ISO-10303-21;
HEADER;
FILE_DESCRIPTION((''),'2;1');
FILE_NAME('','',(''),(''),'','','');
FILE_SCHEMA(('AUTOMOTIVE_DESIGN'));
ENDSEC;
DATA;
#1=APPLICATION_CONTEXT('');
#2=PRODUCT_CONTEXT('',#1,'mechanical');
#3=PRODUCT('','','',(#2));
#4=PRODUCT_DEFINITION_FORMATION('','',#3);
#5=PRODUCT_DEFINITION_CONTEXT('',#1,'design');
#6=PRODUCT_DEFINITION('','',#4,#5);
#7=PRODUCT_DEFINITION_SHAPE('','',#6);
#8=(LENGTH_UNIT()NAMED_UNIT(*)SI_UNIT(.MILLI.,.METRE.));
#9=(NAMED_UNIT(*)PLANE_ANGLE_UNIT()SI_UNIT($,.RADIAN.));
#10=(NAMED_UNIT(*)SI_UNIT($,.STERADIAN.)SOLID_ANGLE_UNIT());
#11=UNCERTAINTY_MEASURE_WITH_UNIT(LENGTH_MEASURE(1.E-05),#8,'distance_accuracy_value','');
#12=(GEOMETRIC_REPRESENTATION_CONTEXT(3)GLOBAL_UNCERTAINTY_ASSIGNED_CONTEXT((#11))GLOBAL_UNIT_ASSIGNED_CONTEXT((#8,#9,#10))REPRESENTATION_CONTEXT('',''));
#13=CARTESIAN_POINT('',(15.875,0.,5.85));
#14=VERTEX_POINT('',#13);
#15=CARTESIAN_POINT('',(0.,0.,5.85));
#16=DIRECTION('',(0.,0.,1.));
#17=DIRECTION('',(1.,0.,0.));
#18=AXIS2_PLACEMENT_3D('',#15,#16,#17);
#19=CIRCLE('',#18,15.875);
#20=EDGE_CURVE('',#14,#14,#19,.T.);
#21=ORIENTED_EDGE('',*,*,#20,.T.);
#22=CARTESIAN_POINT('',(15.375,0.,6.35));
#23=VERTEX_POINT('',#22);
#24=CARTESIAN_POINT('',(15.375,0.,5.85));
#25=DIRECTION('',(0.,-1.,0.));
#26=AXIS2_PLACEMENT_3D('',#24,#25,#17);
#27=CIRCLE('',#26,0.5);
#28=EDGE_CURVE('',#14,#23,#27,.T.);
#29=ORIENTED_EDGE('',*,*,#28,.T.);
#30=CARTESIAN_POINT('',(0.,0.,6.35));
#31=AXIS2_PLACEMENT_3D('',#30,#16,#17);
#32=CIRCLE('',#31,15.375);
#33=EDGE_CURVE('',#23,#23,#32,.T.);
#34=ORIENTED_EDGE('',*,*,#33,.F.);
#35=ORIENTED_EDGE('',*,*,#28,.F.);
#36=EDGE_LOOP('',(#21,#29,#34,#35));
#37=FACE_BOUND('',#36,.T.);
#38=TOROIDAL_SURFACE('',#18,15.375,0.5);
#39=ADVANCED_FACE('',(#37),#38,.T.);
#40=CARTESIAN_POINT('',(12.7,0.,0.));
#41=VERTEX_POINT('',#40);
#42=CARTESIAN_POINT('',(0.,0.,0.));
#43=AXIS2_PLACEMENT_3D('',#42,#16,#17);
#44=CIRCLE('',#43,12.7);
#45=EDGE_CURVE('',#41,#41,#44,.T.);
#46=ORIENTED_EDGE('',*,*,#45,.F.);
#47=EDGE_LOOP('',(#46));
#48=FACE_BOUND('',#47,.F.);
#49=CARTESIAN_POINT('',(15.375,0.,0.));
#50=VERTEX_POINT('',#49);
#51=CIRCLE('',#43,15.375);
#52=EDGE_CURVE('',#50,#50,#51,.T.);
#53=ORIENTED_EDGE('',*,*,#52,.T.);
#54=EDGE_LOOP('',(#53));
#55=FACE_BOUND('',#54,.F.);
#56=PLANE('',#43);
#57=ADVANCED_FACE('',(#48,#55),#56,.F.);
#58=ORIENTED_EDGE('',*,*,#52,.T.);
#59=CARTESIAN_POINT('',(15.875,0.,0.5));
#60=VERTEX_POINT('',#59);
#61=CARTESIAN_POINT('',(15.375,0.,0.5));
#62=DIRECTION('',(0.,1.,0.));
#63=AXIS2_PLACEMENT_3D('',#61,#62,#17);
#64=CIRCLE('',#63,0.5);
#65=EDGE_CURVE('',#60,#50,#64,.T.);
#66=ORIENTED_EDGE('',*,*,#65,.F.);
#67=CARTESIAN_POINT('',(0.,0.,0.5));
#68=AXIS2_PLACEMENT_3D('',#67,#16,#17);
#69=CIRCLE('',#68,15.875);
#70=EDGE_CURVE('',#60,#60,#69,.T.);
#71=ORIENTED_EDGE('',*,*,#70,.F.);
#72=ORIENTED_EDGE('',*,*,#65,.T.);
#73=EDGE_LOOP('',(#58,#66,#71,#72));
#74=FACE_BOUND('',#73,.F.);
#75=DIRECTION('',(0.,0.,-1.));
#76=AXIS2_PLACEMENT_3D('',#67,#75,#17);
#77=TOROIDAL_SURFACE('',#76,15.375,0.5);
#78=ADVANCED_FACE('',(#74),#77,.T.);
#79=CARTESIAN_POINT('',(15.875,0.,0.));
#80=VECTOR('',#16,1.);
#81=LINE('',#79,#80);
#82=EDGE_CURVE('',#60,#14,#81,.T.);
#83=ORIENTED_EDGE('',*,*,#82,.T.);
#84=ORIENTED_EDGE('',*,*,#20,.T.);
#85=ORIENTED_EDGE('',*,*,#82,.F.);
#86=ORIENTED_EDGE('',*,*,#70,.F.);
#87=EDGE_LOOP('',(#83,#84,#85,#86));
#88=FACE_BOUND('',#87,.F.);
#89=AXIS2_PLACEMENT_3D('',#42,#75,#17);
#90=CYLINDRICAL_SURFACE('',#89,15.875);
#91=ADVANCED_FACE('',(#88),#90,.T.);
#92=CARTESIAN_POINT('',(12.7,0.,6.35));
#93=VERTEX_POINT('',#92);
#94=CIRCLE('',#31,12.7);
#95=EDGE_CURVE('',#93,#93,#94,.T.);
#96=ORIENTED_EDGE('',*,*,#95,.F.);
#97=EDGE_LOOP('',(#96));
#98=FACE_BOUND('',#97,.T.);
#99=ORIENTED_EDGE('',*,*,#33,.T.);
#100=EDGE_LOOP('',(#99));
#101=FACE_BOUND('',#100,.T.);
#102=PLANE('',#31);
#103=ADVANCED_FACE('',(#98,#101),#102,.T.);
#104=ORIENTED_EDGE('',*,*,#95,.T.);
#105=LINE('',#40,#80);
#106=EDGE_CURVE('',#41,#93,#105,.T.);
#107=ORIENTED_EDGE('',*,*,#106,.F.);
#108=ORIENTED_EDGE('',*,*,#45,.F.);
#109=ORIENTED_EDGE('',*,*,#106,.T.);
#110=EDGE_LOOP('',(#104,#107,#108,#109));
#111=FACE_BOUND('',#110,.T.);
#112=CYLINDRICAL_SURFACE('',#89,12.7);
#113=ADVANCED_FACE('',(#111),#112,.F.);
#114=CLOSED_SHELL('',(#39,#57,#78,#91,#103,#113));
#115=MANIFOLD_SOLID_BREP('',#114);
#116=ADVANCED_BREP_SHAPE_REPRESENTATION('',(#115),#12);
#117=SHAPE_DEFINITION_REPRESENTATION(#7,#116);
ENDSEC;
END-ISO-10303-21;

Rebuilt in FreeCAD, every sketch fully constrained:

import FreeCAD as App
import Part
import Sketcher
from FreeCAD import Vector
Q = App.Units.Quantity


def edges_at(feature, points):
    """Names of the edges that pass closest to the given points."""
    edges = feature.Shape.Edges
    near = lambda p: min(range(len(edges)), key=lambda i: edges[i].distToShape(Part.Vertex(*p))[0])
    return sorted({f"Edge{near(p) + 1}" for p in points})

doc = App.newDocument("Part")
params = doc.addObject("Spreadsheet::Sheet", "Params")
for row, (alias, value) in enumerate([
    ("sketch1_diameter", "1 in"),
    ("sketch1_diameter2", "1.25 in"),
    ("pad1_length", "0.25 in"),
    ("fillet_radius", "0.5 mm"),
], start=1):
    params.set(f"A{row}", alias)
    params.set(f"B{row}", "=" + value)
    params.setAlias(f"B{row}", alias)

body = doc.addObject("PartDesign::Body", "Body")

sketch1 = body.newObject("Sketcher::SketchObject", "Sketch")
sketch1.AttachmentSupport = (doc.getObject("XY_Plane"), [""])
sketch1.MapMode = "FlatFace"
sketch1.addGeometry([
    Part.Circle(Vector(0, 0, 0), Vector(0, 0, 1), 16),
    Part.Circle(Vector(0, 0, 0), Vector(0, 0, 1), 13),
], False)
sketch1.addConstraint([
    Sketcher.Constraint("Coincident", 0, 3, -1, 1),
    Sketcher.Constraint("Coincident", 1, 3, -1, 1),
    Sketcher.Constraint("Diameter", 1, Q("1 in")),
    Sketcher.Constraint("Diameter", 0, Q("1.25 in")),
])
sketch1.setExpression("Constraints[2]", "Params.sketch1_diameter")
sketch1.setExpression("Constraints[3]", "Params.sketch1_diameter2")
pad1 = body.newObject("PartDesign::Pad", "Pad")
pad1.Profile = sketch1
pad1.setExpression("Length", "Params.pad1_length")
doc.recompute()

fillet = body.newObject("PartDesign::Fillet", "Fillet")
fillet.Base = (pad1, edges_at(pad1, [(-14.801, -5.741, 0), (-14.801, -5.741, 6.35)]))
fillet.setExpression("Radius", "Params.fillet_radius")

doc.recompute()
